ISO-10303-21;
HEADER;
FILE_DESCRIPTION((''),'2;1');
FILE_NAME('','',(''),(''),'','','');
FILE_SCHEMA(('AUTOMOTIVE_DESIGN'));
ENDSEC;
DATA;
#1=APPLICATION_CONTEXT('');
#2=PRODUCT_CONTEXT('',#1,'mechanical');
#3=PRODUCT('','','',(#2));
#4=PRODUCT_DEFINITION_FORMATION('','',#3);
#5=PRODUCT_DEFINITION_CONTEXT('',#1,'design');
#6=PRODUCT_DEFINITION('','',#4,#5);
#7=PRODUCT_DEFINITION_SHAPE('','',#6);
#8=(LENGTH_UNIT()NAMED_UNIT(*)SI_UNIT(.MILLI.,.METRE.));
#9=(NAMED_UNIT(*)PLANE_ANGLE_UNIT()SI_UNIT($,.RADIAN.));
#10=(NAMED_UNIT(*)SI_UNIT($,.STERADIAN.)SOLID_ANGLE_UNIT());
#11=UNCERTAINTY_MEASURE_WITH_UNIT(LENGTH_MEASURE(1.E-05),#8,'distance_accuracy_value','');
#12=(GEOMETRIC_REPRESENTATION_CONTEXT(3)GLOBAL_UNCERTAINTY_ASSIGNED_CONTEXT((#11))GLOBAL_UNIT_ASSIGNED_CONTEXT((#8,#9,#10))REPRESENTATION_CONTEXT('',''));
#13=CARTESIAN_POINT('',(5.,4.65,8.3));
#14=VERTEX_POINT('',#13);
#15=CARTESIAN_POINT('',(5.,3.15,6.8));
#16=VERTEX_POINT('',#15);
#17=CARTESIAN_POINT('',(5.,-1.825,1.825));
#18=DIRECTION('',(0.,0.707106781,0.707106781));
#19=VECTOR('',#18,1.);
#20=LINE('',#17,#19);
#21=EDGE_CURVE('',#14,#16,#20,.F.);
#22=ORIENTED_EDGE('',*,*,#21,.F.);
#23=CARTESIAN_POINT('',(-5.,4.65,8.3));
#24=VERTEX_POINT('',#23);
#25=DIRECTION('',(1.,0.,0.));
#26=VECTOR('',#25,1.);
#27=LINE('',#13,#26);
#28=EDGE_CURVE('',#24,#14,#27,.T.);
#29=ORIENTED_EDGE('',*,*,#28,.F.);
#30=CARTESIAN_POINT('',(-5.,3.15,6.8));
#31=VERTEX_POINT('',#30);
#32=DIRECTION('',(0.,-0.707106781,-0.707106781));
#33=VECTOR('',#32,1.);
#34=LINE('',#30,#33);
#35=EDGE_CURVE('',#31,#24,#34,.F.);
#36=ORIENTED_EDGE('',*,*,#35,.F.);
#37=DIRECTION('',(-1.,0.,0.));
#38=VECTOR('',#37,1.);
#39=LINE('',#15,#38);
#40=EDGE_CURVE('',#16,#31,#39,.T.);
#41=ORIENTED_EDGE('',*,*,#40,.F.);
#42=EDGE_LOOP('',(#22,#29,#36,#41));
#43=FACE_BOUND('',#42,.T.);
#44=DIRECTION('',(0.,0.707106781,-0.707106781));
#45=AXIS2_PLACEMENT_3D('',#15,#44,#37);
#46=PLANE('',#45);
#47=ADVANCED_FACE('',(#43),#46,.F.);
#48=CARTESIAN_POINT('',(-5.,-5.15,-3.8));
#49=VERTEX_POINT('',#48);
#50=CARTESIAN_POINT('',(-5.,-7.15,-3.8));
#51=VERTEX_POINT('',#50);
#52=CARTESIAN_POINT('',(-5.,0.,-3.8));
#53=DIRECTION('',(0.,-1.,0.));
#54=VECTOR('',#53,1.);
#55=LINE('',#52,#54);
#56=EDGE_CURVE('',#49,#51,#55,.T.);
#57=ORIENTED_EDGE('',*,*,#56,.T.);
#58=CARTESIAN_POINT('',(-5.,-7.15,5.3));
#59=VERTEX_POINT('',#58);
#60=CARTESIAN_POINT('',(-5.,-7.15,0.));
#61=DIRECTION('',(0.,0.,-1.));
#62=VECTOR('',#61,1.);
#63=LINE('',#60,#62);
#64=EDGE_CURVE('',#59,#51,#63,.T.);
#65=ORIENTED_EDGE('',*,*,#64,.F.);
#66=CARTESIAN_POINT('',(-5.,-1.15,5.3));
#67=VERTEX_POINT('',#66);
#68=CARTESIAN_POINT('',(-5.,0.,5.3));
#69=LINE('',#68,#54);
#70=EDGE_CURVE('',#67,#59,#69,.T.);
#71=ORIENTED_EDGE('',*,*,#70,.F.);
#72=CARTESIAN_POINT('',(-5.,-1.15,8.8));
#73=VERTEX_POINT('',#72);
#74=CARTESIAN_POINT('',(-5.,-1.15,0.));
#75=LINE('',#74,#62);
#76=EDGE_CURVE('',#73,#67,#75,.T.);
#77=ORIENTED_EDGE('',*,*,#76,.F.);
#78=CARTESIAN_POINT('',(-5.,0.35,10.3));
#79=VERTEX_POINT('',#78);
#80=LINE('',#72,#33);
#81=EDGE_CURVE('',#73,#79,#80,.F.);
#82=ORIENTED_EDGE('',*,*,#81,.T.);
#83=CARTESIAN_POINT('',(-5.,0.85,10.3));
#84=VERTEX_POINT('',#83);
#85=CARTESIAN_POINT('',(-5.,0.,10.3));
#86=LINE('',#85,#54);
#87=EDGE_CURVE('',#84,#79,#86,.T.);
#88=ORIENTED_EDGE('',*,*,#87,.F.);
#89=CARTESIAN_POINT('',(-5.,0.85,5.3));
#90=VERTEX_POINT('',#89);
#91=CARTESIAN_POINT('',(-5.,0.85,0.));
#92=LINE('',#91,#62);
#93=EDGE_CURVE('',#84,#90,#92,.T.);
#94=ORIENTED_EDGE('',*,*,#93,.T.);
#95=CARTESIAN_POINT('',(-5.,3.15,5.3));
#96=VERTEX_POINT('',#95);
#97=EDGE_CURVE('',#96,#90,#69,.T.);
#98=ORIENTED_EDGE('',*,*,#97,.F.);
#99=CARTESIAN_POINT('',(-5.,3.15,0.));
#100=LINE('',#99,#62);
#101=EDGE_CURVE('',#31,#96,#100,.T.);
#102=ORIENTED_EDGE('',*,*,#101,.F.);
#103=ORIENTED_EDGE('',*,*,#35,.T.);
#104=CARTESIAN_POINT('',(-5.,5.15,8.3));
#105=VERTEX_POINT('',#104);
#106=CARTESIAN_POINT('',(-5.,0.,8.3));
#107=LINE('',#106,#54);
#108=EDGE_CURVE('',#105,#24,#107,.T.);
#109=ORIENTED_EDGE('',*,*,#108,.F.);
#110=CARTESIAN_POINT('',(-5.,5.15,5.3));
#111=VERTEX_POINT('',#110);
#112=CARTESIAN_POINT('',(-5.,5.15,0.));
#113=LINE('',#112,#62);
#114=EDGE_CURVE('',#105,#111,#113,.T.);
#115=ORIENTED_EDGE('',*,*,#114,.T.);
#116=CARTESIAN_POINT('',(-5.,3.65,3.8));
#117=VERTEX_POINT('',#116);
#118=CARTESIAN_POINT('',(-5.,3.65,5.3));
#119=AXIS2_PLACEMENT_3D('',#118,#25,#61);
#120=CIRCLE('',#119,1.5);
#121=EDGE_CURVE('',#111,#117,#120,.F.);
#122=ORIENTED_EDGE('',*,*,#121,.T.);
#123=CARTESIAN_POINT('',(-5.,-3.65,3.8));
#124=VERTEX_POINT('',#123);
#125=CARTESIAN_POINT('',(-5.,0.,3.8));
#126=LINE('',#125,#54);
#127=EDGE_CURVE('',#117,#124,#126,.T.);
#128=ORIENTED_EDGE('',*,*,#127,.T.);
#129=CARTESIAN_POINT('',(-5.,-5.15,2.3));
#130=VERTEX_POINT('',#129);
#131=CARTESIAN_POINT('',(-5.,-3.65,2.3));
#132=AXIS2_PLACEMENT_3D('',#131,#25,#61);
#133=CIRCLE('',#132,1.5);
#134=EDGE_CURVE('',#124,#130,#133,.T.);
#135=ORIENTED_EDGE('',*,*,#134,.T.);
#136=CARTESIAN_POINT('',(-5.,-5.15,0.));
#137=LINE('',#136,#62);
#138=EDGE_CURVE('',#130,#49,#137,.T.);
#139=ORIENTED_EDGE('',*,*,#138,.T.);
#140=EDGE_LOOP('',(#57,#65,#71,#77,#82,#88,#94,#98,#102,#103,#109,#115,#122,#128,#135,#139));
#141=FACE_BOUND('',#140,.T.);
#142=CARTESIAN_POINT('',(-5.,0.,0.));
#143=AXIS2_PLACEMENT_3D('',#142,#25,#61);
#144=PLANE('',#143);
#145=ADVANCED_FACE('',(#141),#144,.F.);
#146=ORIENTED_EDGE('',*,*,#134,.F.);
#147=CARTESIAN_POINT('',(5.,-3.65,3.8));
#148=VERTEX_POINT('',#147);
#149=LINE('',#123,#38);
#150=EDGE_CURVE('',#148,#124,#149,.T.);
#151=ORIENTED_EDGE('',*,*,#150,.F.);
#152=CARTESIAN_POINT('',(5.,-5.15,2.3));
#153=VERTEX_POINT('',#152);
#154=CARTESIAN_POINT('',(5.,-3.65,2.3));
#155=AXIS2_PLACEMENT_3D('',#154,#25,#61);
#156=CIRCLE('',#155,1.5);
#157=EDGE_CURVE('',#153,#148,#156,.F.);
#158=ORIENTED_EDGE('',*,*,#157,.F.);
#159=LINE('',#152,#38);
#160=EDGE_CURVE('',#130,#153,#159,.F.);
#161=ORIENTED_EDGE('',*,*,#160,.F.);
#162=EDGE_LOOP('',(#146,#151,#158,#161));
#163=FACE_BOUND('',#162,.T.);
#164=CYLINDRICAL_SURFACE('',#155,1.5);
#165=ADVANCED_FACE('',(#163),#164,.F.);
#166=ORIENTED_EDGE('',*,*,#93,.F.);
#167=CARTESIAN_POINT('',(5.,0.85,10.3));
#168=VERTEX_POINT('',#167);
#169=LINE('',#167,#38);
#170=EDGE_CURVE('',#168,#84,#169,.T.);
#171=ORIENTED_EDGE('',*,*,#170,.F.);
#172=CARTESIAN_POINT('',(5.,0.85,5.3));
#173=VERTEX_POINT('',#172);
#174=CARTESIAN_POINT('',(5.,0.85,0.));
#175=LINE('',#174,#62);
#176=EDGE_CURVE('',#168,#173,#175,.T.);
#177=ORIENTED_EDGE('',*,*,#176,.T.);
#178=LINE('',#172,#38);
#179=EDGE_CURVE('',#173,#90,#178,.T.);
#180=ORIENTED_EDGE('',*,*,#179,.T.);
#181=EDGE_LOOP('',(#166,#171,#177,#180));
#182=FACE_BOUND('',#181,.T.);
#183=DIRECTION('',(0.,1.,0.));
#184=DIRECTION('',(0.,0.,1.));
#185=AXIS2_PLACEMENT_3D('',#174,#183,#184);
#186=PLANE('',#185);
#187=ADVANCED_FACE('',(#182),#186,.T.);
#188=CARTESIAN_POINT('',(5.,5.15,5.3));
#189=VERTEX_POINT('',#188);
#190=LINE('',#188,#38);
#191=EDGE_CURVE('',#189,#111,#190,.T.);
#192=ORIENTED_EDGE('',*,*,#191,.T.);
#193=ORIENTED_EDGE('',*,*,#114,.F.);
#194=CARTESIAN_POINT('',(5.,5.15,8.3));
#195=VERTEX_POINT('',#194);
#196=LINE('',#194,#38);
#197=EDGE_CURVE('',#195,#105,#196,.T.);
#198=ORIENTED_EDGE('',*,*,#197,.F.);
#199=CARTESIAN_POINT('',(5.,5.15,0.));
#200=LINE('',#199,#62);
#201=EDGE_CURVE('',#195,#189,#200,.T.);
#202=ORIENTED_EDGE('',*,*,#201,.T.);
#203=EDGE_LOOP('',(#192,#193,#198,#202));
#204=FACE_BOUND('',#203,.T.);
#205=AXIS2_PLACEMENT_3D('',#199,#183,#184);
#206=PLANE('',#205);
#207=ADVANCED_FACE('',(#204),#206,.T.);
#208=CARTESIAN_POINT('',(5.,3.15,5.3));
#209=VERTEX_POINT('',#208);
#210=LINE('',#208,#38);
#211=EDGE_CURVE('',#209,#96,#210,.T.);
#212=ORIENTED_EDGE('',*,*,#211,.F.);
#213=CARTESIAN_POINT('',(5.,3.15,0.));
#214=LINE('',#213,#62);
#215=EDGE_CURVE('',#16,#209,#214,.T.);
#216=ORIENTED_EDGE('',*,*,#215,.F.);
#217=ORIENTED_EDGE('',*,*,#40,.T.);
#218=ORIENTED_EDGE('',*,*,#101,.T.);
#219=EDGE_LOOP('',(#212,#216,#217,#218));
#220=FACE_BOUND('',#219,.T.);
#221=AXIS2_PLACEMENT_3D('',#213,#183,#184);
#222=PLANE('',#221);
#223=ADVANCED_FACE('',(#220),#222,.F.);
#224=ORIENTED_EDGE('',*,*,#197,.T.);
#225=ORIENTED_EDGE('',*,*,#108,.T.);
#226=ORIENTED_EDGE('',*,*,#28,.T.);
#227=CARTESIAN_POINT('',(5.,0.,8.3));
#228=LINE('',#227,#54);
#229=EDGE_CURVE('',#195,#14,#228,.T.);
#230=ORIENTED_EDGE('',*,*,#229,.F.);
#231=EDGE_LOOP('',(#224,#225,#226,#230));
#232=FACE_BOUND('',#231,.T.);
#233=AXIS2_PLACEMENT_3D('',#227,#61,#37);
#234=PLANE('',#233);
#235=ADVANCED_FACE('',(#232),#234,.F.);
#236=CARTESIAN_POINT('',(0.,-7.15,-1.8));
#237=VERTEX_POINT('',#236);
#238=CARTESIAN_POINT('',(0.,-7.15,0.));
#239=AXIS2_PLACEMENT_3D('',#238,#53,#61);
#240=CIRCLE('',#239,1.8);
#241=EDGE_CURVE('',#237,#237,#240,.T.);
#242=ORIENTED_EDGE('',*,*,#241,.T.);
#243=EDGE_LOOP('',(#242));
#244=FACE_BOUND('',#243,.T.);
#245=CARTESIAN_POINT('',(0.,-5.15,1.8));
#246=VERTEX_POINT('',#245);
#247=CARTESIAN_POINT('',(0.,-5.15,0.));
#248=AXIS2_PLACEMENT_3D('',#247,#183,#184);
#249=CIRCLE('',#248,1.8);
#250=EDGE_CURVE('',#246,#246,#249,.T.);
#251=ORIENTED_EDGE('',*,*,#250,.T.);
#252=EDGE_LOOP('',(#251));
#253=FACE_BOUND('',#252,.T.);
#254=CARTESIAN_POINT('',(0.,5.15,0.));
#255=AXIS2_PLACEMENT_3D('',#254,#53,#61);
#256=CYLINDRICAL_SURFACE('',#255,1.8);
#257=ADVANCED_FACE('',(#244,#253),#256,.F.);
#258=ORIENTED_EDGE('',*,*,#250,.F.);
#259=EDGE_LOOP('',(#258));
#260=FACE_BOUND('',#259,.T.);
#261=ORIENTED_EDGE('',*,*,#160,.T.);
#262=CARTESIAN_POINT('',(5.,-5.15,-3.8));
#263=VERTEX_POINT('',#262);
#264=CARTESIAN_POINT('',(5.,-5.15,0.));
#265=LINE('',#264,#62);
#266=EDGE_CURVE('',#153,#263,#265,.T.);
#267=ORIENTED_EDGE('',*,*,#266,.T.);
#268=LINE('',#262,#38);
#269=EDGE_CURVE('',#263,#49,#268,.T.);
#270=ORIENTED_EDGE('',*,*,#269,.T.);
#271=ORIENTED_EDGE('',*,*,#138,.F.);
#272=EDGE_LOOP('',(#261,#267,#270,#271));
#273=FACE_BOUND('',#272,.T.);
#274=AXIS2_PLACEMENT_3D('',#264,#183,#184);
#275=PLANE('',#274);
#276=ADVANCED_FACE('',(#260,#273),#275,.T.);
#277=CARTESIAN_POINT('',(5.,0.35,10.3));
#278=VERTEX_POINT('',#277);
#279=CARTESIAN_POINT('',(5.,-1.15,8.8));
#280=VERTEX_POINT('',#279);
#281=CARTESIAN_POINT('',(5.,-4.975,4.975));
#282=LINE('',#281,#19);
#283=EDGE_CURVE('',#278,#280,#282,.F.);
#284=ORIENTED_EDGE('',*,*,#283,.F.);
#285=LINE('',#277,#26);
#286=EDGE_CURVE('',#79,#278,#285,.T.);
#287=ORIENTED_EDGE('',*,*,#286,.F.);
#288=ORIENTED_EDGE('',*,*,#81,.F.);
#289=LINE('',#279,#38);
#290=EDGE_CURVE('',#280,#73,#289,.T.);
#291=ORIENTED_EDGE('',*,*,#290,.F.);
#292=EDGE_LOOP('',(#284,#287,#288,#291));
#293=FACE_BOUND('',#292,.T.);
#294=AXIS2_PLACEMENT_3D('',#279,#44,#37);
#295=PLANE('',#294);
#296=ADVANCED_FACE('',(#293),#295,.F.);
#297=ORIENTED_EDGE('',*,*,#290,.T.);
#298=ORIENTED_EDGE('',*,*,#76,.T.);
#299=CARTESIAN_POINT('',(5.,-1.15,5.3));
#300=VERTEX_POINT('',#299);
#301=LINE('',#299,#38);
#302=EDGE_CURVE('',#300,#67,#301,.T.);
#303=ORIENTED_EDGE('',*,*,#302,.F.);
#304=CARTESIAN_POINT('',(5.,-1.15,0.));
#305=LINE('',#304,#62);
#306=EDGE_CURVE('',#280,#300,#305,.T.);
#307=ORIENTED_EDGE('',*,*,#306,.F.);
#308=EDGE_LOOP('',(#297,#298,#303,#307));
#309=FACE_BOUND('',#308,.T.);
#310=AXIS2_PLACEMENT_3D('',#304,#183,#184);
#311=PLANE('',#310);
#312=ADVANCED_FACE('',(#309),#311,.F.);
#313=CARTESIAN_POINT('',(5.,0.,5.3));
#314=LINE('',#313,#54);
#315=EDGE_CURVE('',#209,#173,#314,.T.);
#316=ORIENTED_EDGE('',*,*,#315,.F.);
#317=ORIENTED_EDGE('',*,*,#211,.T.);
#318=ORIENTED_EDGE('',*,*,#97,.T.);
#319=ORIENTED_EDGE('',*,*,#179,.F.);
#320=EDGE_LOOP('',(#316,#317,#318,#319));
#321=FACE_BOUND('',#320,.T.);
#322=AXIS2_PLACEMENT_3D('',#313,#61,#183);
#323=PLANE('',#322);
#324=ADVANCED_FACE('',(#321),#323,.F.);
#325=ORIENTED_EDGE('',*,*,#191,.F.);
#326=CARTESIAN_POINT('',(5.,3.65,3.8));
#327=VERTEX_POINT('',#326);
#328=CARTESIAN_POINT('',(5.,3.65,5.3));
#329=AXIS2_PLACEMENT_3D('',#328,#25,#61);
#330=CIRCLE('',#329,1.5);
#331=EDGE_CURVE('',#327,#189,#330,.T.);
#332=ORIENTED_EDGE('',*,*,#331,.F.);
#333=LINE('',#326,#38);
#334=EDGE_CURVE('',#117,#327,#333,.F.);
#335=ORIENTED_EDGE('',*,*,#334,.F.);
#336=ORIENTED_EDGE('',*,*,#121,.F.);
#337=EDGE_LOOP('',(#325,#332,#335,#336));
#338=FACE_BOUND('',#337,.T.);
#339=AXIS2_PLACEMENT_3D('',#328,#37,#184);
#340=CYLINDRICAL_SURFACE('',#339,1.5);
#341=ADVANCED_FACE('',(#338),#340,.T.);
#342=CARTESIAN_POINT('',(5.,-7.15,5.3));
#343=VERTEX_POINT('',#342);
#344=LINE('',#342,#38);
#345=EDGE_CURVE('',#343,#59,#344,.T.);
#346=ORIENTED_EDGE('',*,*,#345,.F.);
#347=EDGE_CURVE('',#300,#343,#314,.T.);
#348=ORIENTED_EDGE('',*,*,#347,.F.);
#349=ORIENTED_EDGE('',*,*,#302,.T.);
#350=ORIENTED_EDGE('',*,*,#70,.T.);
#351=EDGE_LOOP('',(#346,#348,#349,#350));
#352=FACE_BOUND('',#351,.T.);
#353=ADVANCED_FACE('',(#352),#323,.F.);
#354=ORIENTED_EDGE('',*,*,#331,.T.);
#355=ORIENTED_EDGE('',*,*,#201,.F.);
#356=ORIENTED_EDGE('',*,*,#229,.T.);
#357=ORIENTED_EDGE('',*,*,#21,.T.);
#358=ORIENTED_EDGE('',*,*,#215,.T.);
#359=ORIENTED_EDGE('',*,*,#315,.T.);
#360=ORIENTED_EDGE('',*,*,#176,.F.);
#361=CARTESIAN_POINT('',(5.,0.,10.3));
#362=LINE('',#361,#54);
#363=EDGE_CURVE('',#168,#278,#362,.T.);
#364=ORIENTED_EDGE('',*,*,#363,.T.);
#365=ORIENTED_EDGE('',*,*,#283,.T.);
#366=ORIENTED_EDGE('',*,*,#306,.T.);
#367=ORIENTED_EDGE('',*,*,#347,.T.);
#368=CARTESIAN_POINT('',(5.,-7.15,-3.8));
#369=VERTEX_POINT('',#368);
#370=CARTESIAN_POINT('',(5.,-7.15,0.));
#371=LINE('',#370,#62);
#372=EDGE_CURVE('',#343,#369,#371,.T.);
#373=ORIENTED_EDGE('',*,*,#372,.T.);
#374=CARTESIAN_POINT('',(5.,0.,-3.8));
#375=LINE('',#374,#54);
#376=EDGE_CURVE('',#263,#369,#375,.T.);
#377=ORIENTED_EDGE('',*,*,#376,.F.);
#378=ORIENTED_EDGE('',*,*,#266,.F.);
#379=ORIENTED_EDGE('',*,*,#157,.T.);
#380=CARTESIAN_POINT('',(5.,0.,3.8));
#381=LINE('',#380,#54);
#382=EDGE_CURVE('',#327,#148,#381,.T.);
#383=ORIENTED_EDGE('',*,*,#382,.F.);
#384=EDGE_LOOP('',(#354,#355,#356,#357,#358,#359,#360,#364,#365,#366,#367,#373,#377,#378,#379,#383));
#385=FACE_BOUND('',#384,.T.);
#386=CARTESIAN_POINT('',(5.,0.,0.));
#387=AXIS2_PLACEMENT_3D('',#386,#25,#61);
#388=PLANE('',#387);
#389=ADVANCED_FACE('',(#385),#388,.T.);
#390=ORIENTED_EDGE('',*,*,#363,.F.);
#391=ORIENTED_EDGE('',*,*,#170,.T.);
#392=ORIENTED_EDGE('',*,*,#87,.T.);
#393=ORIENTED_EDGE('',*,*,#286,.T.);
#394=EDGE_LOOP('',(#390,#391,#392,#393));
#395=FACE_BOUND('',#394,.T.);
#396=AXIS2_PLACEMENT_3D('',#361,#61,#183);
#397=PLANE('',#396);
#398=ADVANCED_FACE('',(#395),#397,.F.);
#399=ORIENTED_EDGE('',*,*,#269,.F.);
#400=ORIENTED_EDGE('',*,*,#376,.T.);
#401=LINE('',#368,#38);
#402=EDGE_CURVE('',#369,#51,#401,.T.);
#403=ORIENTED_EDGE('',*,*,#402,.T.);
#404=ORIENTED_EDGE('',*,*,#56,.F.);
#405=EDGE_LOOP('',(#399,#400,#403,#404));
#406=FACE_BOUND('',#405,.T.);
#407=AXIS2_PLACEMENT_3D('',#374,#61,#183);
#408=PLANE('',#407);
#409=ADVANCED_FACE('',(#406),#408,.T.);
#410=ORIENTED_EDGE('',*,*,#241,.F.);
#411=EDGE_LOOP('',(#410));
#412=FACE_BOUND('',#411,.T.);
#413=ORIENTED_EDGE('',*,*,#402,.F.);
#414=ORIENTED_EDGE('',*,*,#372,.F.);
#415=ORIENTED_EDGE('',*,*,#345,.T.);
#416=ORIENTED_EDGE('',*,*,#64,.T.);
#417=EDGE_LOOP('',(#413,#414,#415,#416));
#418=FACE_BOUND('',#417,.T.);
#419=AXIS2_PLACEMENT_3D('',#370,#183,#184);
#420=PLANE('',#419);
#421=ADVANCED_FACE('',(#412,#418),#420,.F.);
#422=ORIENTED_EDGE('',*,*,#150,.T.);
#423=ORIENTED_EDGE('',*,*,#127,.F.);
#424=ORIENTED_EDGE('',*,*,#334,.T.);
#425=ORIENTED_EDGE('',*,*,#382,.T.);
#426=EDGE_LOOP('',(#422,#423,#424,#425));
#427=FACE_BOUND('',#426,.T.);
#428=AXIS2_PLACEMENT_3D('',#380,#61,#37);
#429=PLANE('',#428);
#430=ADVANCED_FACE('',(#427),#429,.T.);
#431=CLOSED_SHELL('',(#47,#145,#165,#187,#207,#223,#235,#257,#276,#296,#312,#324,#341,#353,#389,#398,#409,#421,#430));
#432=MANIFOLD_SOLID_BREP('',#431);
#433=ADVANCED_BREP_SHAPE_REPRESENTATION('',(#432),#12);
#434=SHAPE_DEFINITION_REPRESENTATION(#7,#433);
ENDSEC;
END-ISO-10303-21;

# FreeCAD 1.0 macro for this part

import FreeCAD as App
import Part
import Sketcher

V = App.Vector


def edges_at(feature, points):
    """Names of the edges that pass closest to the given points."""
    edges = feature.Shape.Edges
    near = lambda p: min(range(len(edges)), key=lambda i: edges[i].distToShape(Part.Vertex(*p))[0])
    return sorted({f"Edge{near(p) + 1}" for p in points})


def add_polygon(sketch, points):
    """Adds a closed chain of lines whose ends are joined by coincident constraints."""
    first, n = sketch.GeometryCount, len(points)
    for a, b in zip(points, points[1:] + points[:1]):
        sketch.addGeometry(Part.LineSegment(App.Vector(*a, 0), App.Vector(*b, 0)), False)
    for i in range(n):
        sketch.addConstraint(Sketcher.Constraint("Coincident", first + i, 2, first + (i + 1) % n, 1))

doc = App.newDocument("Part")
body = doc.addObject("PartDesign::Body", "Body")

# Sketch on YZ plane
sketch1 = body.newObject("Sketcher::SketchObject", "Sketch")
sketch1.AttachmentSupport = (doc.getObject("YZ_Plane"), [""])
sketch1.MapMode = "FlatFace"
add_polygon(sketch1, [(5.2, 3.8), (5.2, 8.3), (3.1, 8.3), (3.1, 5.3), (0.8, 5.3), (0.8, 10.3), (-1.1, 10.3), (-1.1, 5.3), (-7.2, 5.3), (-7.2, -3.8), (-5.2, -3.8), (-5.2, 3.8)])  # lines 0-11
sketch1.addConstraint(Sketcher.Constraint("Vertical", 0))
sketch1.addConstraint(Sketcher.Constraint("Horizontal", 1))
sketch1.addConstraint(Sketcher.Constraint("Vertical", 2))
sketch1.addConstraint(Sketcher.Constraint("Horizontal", 3))
sketch1.addConstraint(Sketcher.Constraint("Vertical", 4))
sketch1.addConstraint(Sketcher.Constraint("Horizontal", 5))
sketch1.addConstraint(Sketcher.Constraint("Vertical", 6))
sketch1.addConstraint(Sketcher.Constraint("Horizontal", 7))
sketch1.addConstraint(Sketcher.Constraint("Vertical", 8))
sketch1.addConstraint(Sketcher.Constraint("Horizontal", 9))
sketch1.addConstraint(Sketcher.Constraint("Vertical", 10))
sketch1.addConstraint(Sketcher.Constraint("Horizontal", 11))
sketch1.addConstraint(Sketcher.Constraint("Symmetric", 9, 2, 11, 2, -1, 1))
sketch1.addConstraint(Sketcher.Constraint("Horizontal", 3, 2, 6, 2))
sketch1.addConstraint(Sketcher.Constraint("Equal", 1, 5))
sketch1.addConstraint(Sketcher.Constraint("Equal", 5, 9))
sketch1.addConstraint(Sketcher.Constraint("DistanceX", 1, 2, 1, 1, 2.0))
sketch1.addConstraint(Sketcher.Constraint("DistanceX", 7, 2, 7, 1, 6.0))
sketch1.addConstraint(Sketcher.Constraint("DistanceY", 2, 2, 2, 1, 3.0))
sketch1.addConstraint(Sketcher.Constraint("DistanceY", 4, 1, 4, 2, 5.0))
sketch1.addConstraint(Sketcher.Constraint("DistanceX", 3, 2, 3, 1, 2.3))
sketch1.addConstraint(Sketcher.Constraint("DistanceY", 0, 1, 0, 2, 4.5))
sketch1.addConstraint(Sketcher.Constraint("DistanceY", 8, 2, 8, 1, 9.1))
pad1 = body.newObject("PartDesign::Pad", "Pad")
pad1.Profile = sketch1
pad1.Length = 10
pad1.Midplane = True

# Sketch on XZ plane
sketch2 = body.newObject("Sketcher::SketchObject", "Sketch001")
sketch2.AttachmentSupport = (doc.getObject("XZ_Plane"), [""])
sketch2.MapMode = "FlatFace"
sketch2.addGeometry(Part.Circle(V(0, 0, 0), V(0, 0, 1), 1.8), False)
sketch2.addConstraint(Sketcher.Constraint("Coincident", 0, 3, -1, 1))
sketch2.addConstraint(Sketcher.Constraint("Diameter", 0, 3.6))
pocket1 = body.newObject("PartDesign::Pocket", "Pocket")
pocket1.Profile = sketch2
pocket1.Type = "ThroughAll"
pocket1.Midplane = True
doc.recompute()

chamfer = body.newObject("PartDesign::Chamfer", "Chamfer")
chamfer.Base = (pocket1, edges_at(pocket1, [(0, -1.15, 10.3), (0, 3.15, 8.3)]))
chamfer.Size = 1.5
doc.recompute()

fillet = body.newObject("PartDesign::Fillet", "Fillet")
fillet.Base = (chamfer, edges_at(chamfer, [(0, 5.15, 3.8), (0, -5.15, 3.8)]))
fillet.Radius = 1.5

doc.recompute()
